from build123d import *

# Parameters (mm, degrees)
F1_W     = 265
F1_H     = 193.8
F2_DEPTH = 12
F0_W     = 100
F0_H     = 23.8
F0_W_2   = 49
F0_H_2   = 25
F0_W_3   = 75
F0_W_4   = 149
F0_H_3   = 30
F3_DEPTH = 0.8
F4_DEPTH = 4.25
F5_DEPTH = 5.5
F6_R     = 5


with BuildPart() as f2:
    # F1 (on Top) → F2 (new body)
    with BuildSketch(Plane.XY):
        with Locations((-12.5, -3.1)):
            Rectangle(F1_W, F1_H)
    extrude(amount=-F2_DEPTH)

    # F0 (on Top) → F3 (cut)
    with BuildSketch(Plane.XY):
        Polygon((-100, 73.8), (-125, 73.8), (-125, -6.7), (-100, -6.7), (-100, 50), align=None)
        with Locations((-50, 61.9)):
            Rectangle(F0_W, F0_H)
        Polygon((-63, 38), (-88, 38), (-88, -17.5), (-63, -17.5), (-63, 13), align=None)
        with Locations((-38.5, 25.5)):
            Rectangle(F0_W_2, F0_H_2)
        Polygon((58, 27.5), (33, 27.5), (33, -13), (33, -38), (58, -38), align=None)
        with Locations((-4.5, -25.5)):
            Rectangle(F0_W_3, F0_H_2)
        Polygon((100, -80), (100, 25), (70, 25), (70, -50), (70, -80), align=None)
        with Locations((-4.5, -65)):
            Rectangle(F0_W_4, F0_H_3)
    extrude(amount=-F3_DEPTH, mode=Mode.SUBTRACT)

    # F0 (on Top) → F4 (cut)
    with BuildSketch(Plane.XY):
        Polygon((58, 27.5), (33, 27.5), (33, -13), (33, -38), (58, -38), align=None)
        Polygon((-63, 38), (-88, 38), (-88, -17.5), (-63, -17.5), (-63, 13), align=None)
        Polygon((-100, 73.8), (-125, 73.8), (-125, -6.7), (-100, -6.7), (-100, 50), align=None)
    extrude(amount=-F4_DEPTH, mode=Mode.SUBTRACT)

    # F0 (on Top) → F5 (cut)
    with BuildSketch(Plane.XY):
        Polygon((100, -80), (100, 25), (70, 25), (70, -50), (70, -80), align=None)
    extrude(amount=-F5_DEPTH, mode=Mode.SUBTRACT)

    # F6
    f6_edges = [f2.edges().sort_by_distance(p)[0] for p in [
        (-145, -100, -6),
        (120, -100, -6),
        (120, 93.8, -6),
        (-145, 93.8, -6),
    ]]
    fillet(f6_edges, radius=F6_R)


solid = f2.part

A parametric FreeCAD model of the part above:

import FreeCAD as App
import Part
import Sketcher

V = App.Vector


def edges_at(feature, points):
    """Names of the edges that pass closest to the given points."""
    edges = feature.Shape.Edges
    near = lambda p: min(range(len(edges)), key=lambda i: edges[i].distToShape(Part.Vertex(*p))[0])
    return sorted({f"Edge{near(p) + 1}" for p in points})


def add_polygon(sketch, points):
    """Adds a closed chain of lines whose ends are joined by coincident constraints."""
    first, n = sketch.GeometryCount, len(points)
    for a, b in zip(points, points[1:] + points[:1]):
        sketch.addGeometry(Part.LineSegment(App.Vector(*a, 0), App.Vector(*b, 0)), False)
    for i in range(n):
        sketch.addConstraint(Sketcher.Constraint("Coincident", first + i, 2, first + (i + 1) % n, 1))

doc = App.newDocument("Part")
body = doc.addObject("PartDesign::Body", "Body")

# Sketch on XY plane
sketch1 = body.newObject("Sketcher::SketchObject", "Sketch")
sketch1.AttachmentSupport = (doc.getObject("XY_Plane"), [""])
sketch1.MapMode = "FlatFace"
add_polygon(sketch1, [(-145, 93.8), (-145, -100), (120, -100), (120, 93.8)])  # lines 0-3
sketch1.addConstraint([
    Sketcher.Constraint("Vertical", 0),
    Sketcher.Constraint("Horizontal", 1),
    Sketcher.Constraint("Vertical", 2),
    Sketcher.Constraint("Horizontal", 3),
    Sketcher.Constraint("DistanceX", 1, 1, 1, 2, 265.0),
    Sketcher.Constraint("DistanceY", 0, 2, 0, 1, 193.8),
    Sketcher.Constraint("DistanceX", 0, 2, -1, 1, 145.0),
    Sketcher.Constraint("DistanceY", 0, 2, -1, 1, 100.0),
])
pad1 = body.newObject("PartDesign::Pad", "Pad")
pad1.Profile = sketch1
pad1.Length = 12
pad1.Reversed = True

# Sketch on XY plane
sketch2 = body.newObject("Sketcher::SketchObject", "Sketch001")
sketch2.AttachmentSupport = (doc.getObject("XY_Plane"), [""])
sketch2.MapMode = "FlatFace"
add_polygon(sketch2, [(-125, 73.8), (-125, -6.7), (-100, -6.7), (-100, 50), (0, 50), (0, 73.8)])  # lines 0-5
add_polygon(sketch2, [(-88, 38), (-88, -17.5), (-63, -17.5), (-63, 13), (-14, 13), (-14, 38)])  # lines 6-11
add_polygon(sketch2, [(58, 27.5), (33, 27.5), (33, -13), (-42, -13), (-42, -38), (58, -38)])  # lines 12-17
add_polygon(sketch2, [(100, -80), (100, 25), (70, 25), (70, -50), (-79, -50), (-79, -80)])  # lines 18-23
sketch2.addConstraint([
    Sketcher.Constraint("Vertical", 0),
    Sketcher.Constraint("Horizontal", 1),
    Sketcher.Constraint("Vertical", 2),
    Sketcher.Constraint("Horizontal", 3),
    Sketcher.Constraint("Vertical", 4),
    Sketcher.Constraint("Horizontal", 5),
    Sketcher.Constraint("Vertical", 6),
    Sketcher.Constraint("Horizontal", 7),
    Sketcher.Constraint("Vertical", 8),
    Sketcher.Constraint("Horizontal", 9),
    Sketcher.Constraint("Vertical", 10),
    Sketcher.Constraint("Horizontal", 11),
    Sketcher.Constraint("Horizontal", 12),
    Sketcher.Constraint("Vertical", 13),
    Sketcher.Constraint("Horizontal", 14),
    Sketcher.Constraint("Vertical", 15),
    Sketcher.Constraint("Horizontal", 16),
    Sketcher.Constraint("Vertical", 17),
    Sketcher.Constraint("Vertical", 18),
    Sketcher.Constraint("Horizontal", 19),
    Sketcher.Constraint("Vertical", 20),
    Sketcher.Constraint("Horizontal", 21),
    Sketcher.Constraint("Vertical", 22),
    Sketcher.Constraint("Horizontal", 23),
    Sketcher.Constraint("PointOnObject", 3, 2, -2),
    Sketcher.Constraint("Equal", 1, 7),
    Sketcher.Constraint("Equal", 7, 12),
    Sketcher.Constraint("Equal", 3, 16),
    Sketcher.Constraint("Equal", 12, 10),
    Sketcher.Constraint("Equal", 10, 15),
    Sketcher.Constraint("Equal", 14, 20),
    Sketcher.Constraint("Equal", 19, 22),
    Sketcher.Constraint("DistanceX", 1, 1, 1, 2, 25.0),
    Sketcher.Constraint("DistanceX", 3, 1, 3, 2, 100.0),
    Sketcher.Constraint("DistanceX", 9, 1, 9, 2, 49.0),
    Sketcher.Constraint("DistanceX", 19, 2, 19, 1, 30.0),
    Sketcher.Constraint("DistanceX", 21, 2, 21, 1, 149.0),
    Sketcher.Constraint("DistanceY", 0, 2, 0, 1, 80.5),
    Sketcher.Constraint("DistanceY", 2, 1, 2, 2, 56.7),
    Sketcher.Constraint("DistanceY", 6, 2, 6, 1, 55.5),
    Sketcher.Constraint("DistanceY", 13, 2, 13, 1, 40.5),
    Sketcher.Constraint("DistanceY", -1, 1, 2, 2, 50.0),
    Sketcher.Constraint("DistanceX", 6, 2, -1, 1, 88.0),
    Sketcher.Constraint("DistanceY", -1, 1, 8, 2, 13.0),
    Sketcher.Constraint("DistanceX", -1, 1, 12, 2, 33.0),
    Sketcher.Constraint("DistanceY", 13, 2, -1, 1, 13.0),
    Sketcher.Constraint("DistanceX", -1, 1, 18, 2, 100.0),
    Sketcher.Constraint("DistanceY", -1, 1, 18, 2, 25.0),
])
pocket1 = body.newObject("PartDesign::Pocket", "Pocket")
pocket1.Profile = sketch2
pocket1.Length = 0.8

# Sketch on XY plane
sketch3 = body.newObject("Sketcher::SketchObject", "Sketch002")
sketch3.AttachmentSupport = (doc.getObject("XY_Plane"), [""])
sketch3.MapMode = "FlatFace"
add_polygon(sketch3, [(58, 27.5), (33, 27.5), (33, -38), (58, -38)])  # lines 0-3
add_polygon(sketch3, [(-63, 38), (-88, 38), (-88, -17.5), (-63, -17.5)])  # lines 4-7
add_polygon(sketch3, [(-100, 73.8), (-125, 73.8), (-125, -6.7), (-100, -6.7)])  # lines 8-11
sketch3.addConstraint([
    Sketcher.Constraint("Horizontal", 0),
    Sketcher.Constraint("Vertical", 1),
    Sketcher.Constraint("Horizontal", 2),
    Sketcher.Constraint("Vertical", 3),
    Sketcher.Constraint("Horizontal", 4),
    Sketcher.Constraint("Vertical", 5),
    Sketcher.Constraint("Horizontal", 6),
    Sketcher.Constraint("Vertical", 7),
    Sketcher.Constraint("Horizontal", 8),
    Sketcher.Constraint("Vertical", 9),
    Sketcher.Constraint("Horizontal", 10),
    Sketcher.Constraint("Vertical", 11),
    Sketcher.Constraint("Equal", 2, 4),
    Sketcher.Constraint("Equal", 6, 8),
    Sketcher.Constraint("DistanceX", 0, 2, 0, 1, 25.0),
    Sketcher.Constraint("DistanceY", 1, 2, 1, 1, 65.5),
    Sketcher.Constraint("DistanceY", 5, 2, 5, 1, 55.5),
    Sketcher.Constraint("DistanceY", 9, 2, 9, 1, 80.5),
    Sketcher.Constraint("DistanceX", -1, 1, 0, 2, 33.0),
    Sketcher.Constraint("DistanceY", 1, 2, -1, 1, 38.0),
    Sketcher.Constraint("DistanceX", 4, 2, -1, 1, 88.0),
    Sketcher.Constraint("DistanceY", -1, 1, 4, 2, 38.0),
    Sketcher.Constraint("DistanceX", 8, 2, -1, 1, 125.0),
    Sketcher.Constraint("DistanceY", -1, 1, 8, 2, 73.8),
])
pocket2 = body.newObject("PartDesign::Pocket", "Pocket001")
pocket2.Profile = sketch3
pocket2.Length = 4.25

# Sketch on XY plane
sketch4 = body.newObject("Sketcher::SketchObject", "Sketch003")
sketch4.AttachmentSupport = (doc.getObject("XY_Plane"), [""])
sketch4.MapMode = "FlatFace"
add_polygon(sketch4, [(100, -80), (100, 25), (70, 25), (70, -80)])  # lines 0-3
sketch4.addConstraint([
    Sketcher.Constraint("Vertical", 0),
    Sketcher.Constraint("Horizontal", 1),
    Sketcher.Constraint("Vertical", 2),
    Sketcher.Constraint("Horizontal", 3),
    Sketcher.Constraint("DistanceX", 1, 2, 1, 1, 30.0),
    Sketcher.Constraint("DistanceY", 0, 1, 0, 2, 105.0),
    Sketcher.Constraint("DistanceX", -1, 1, 0, 2, 100.0),
    Sketcher.Constraint("DistanceY", -1, 1, 0, 2, 25.0),
])
pocket3 = body.newObject("PartDesign::Pocket", "Pocket002")
pocket3.Profile = sketch4
pocket3.Length = 5.5
doc.recompute()

fillet = body.newObject("PartDesign::Fillet", "Fillet")
fillet.Base = (pocket3, edges_at(pocket3, [
    (-145, -100, -6),
    (120, -100, -6),
    (120, 93.8, -6),
    (-145, 93.8, -6),
]))
fillet.Radius = 5

doc.recompute()
